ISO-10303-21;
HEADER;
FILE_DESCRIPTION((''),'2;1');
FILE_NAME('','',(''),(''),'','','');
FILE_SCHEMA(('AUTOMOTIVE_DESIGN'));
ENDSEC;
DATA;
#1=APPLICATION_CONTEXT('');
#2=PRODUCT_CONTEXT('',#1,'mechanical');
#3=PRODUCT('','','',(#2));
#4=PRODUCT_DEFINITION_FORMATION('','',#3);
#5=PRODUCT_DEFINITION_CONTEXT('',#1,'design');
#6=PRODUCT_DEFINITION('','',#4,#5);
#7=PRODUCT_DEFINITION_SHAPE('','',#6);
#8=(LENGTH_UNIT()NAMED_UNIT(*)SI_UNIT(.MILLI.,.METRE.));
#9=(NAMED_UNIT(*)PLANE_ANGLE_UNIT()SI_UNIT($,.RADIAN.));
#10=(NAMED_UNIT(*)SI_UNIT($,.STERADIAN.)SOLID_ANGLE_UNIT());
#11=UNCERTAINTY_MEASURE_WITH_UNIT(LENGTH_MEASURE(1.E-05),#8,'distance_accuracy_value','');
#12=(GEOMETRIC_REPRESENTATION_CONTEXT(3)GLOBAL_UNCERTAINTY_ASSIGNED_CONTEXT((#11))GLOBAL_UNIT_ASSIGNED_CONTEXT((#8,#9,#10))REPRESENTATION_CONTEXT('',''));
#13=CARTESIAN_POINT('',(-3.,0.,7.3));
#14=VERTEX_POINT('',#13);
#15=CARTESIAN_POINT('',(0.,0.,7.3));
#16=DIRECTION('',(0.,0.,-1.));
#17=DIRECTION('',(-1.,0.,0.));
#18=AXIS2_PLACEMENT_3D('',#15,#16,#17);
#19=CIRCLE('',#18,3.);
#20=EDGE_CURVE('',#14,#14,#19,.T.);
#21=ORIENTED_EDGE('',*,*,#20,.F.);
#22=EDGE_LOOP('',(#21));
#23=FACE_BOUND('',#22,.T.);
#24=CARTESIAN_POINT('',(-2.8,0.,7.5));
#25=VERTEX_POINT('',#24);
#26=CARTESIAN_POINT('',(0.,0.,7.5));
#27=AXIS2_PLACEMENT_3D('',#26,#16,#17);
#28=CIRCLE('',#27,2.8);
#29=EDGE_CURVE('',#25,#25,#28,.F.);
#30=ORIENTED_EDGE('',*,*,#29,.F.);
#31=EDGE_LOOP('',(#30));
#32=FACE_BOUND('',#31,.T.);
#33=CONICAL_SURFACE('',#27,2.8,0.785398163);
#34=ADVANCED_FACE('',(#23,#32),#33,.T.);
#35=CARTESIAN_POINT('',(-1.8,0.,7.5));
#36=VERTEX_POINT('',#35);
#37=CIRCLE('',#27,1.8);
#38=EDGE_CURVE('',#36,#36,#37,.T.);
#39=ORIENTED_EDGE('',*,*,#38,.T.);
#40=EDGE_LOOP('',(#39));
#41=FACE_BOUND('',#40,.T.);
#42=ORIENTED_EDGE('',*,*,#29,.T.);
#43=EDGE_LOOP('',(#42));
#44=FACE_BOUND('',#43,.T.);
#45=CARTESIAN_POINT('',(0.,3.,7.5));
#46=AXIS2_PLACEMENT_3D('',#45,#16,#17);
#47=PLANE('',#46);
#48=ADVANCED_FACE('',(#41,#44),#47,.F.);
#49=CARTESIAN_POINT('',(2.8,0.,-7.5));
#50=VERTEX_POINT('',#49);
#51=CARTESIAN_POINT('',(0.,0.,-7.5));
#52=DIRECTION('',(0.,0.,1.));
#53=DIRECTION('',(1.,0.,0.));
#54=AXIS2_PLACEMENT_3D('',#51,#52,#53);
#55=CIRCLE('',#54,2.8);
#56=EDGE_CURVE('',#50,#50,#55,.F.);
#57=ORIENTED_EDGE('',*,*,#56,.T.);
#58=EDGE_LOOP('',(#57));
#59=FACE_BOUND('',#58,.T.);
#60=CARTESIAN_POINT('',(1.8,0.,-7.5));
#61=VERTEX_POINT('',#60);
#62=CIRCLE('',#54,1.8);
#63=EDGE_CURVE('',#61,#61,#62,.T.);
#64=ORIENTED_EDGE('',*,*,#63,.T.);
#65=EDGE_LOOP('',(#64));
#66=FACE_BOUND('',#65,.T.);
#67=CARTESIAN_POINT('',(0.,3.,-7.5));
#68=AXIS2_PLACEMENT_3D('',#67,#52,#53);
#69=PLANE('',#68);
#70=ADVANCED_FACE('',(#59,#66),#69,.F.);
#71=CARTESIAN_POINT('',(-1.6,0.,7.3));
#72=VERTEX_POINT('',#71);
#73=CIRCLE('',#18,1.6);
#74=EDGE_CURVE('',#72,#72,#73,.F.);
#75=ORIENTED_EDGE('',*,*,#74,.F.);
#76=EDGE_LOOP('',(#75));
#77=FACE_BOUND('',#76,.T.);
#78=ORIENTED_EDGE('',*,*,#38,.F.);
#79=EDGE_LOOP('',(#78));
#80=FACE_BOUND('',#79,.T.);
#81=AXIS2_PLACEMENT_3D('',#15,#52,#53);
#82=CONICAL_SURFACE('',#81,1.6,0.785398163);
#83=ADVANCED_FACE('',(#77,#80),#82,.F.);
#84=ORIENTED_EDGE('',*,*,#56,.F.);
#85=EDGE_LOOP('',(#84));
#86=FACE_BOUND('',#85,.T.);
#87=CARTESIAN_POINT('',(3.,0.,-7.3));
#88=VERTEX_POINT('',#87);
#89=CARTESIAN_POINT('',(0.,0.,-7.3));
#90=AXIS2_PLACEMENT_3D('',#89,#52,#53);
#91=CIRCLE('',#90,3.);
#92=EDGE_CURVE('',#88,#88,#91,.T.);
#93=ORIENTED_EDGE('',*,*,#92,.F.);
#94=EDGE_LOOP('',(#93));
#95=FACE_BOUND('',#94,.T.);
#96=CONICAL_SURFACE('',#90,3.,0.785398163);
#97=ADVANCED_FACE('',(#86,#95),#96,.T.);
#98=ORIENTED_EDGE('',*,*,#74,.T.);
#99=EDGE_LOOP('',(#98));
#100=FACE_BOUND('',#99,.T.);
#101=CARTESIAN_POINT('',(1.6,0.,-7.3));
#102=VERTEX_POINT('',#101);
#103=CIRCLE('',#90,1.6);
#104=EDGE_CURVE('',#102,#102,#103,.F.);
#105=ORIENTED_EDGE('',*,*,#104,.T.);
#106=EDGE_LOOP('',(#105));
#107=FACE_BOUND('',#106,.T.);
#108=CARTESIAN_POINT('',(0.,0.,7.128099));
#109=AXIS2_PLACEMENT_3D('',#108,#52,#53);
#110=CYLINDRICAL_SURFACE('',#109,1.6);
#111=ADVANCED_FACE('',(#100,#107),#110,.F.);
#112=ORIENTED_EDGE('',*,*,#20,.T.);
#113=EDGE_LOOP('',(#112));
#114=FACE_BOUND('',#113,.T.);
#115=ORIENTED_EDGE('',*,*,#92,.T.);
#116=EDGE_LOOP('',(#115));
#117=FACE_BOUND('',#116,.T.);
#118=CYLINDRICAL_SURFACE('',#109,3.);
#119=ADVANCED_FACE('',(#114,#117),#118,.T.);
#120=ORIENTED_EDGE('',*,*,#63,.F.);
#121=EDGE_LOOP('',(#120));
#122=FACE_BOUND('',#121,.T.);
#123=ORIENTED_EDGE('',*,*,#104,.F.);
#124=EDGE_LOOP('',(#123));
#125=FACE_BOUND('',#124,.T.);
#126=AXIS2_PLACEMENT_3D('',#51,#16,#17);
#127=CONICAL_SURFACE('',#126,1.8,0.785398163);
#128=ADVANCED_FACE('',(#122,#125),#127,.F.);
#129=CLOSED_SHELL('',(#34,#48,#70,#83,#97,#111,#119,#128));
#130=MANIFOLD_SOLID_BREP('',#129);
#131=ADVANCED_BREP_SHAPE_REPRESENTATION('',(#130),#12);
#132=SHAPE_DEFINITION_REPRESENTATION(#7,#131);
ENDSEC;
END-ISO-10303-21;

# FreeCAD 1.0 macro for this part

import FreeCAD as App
import Part
import Sketcher

V = App.Vector
Q = App.Units.Quantity


def edges_at(feature, points):
    """Names of the edges that pass closest to the given points."""
    edges = feature.Shape.Edges
    near = lambda p: min(range(len(edges)), key=lambda i: edges[i].distToShape(Part.Vertex(*p))[0])
    return sorted({f"Edge{near(p) + 1}" for p in points})


def add_polygon(sketch, points):
    """Adds a closed chain of lines whose ends are joined by coincident constraints."""
    first, n = sketch.GeometryCount, len(points)
    for a, b in zip(points, points[1:] + points[:1]):
        sketch.addGeometry(Part.LineSegment(App.Vector(*a, 0), App.Vector(*b, 0)), False)
    for i in range(n):
        sketch.addConstraint(Sketcher.Constraint("Coincident", first + i, 2, first + (i + 1) % n, 1))

doc = App.newDocument("Part")
body = doc.addObject("PartDesign::Body", "Body")

sketch1 = doc.addObject("Sketcher::SketchObject", "Sketch")
body.addObject(sketch1)
sketch1.AttachmentSupport = (doc.YZ_Plane, [""])
sketch1.MapMode = "FlatFace"
add_polygon(sketch1, [(3, 7.5), (1.6, 7.5), (1.6, -7.5), (3, -7.5)])
sketch1.addConstraint([
    Sketcher.Constraint("Horizontal", 0),
    Sketcher.Constraint("Vertical", 1),
    Sketcher.Constraint("Horizontal", 2),
    Sketcher.Constraint("Vertical", 3),
    Sketcher.Constraint("DistanceY", 1, 2, 1, 1, Q("15 mm")),
    Sketcher.Constraint("DistanceX", 0, 2, 0, 1, Q("1.4 mm")),
    Sketcher.Constraint("DistanceX", -1, 1, 2, 2, Q("3 mm")),
    Sketcher.Constraint("DistanceY", -1, 1, 0, 2, Q("7.5 mm")),
])
revolution = doc.addObject("PartDesign::Revolution", "Revolution")
body.addObject(revolution)
revolution.Profile = sketch1
revolution.ReferenceAxis = (sketch1, ["V_Axis"])
revolution.Angle = 360
doc.recompute()

chamfer = doc.addObject("PartDesign::Chamfer", "Chamfer")
body.addObject(chamfer)
chamfer.Base = (revolution, edges_at(revolution, [
    (-3, 0, 7.5),
    (-3, 0, -7.5),
    (-1.6, 0, -7.5),
    (-1.6, 0, 7.5),
]))
chamfer.Size = 0.2

doc.recompute()
